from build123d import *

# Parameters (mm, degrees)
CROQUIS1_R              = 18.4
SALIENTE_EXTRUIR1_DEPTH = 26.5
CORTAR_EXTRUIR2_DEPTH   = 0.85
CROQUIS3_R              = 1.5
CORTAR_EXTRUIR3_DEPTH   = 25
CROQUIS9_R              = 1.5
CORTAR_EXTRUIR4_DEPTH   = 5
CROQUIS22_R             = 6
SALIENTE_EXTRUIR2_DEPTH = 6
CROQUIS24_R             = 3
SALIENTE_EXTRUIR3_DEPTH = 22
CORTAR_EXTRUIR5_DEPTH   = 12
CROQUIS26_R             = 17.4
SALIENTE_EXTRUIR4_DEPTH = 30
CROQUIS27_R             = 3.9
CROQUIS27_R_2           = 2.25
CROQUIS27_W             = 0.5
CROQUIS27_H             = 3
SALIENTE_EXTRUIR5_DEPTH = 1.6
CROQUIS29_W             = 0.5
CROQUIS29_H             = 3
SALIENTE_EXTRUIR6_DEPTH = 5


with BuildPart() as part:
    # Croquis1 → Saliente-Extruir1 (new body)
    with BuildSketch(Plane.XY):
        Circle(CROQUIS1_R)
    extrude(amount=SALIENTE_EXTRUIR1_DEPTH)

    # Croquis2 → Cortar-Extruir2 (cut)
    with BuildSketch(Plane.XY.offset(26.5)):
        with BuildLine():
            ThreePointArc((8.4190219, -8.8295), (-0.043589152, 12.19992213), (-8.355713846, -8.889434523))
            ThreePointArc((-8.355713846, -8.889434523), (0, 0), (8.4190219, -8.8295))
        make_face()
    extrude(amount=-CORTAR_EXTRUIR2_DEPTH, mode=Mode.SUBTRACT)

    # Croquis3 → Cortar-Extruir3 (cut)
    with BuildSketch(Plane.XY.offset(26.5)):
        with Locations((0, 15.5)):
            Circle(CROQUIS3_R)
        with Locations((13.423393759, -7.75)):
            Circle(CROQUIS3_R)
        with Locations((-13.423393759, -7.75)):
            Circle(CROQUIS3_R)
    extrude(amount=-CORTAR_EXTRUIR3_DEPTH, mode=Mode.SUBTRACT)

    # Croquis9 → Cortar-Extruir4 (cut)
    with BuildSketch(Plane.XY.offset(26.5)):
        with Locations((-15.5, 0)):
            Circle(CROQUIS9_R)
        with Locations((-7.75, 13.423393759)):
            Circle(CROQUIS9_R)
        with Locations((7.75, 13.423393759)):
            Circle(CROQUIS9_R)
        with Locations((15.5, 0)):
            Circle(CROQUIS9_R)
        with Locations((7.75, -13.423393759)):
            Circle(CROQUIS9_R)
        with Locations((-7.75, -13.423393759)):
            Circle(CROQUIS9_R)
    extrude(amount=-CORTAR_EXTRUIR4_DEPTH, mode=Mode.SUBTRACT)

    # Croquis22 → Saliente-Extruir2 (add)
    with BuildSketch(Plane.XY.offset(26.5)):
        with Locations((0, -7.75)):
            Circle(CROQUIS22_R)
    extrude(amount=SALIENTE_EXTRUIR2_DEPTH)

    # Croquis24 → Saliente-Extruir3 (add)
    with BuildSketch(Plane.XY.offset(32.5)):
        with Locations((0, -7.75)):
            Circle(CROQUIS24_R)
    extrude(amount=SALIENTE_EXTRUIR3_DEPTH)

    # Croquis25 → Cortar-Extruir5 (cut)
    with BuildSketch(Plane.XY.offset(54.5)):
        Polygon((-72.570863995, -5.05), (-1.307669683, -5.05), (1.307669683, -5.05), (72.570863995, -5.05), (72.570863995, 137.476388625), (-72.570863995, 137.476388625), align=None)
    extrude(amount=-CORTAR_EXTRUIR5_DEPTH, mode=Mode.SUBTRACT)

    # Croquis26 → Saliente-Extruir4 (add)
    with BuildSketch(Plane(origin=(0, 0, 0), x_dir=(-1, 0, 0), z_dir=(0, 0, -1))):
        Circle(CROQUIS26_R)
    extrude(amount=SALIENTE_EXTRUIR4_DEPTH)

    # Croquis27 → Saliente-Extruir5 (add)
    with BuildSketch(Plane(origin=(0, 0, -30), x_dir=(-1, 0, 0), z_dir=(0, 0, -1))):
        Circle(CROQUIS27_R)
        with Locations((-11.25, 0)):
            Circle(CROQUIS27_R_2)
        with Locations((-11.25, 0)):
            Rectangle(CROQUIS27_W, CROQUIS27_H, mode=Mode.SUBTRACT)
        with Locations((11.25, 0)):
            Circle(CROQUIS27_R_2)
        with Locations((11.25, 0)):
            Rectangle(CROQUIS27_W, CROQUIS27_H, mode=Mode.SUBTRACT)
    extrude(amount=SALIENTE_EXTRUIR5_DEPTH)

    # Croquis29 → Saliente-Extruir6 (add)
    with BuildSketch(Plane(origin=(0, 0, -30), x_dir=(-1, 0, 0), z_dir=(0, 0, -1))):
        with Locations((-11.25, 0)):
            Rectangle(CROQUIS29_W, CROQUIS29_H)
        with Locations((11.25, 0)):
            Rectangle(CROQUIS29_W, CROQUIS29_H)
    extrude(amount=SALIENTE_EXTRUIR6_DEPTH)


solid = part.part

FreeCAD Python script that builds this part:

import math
import FreeCAD as App
import Part
import Sketcher
from FreeCAD import Vector
Q = App.Units.Quantity

doc = App.newDocument("Part")
params = doc.addObject("Spreadsheet::Sheet", "Params")
for row, (alias, value) in enumerate([
    ("sketch1_diameter", "36.8 mm"),
    ("pad1_length", "26.5 mm"),
    ("sketch2_radius", "12.2 mm"),
    ("sketch2_radius2", "8.4 mm"),
    ("pocket1_length", "0.85 mm"),
    ("sketch3_diameter", "3 mm"),
    ("pocket2_length", "25 mm"),
    ("sketch4_diameter", "3 mm"),
    ("pocket3_length", "5 mm"),
    ("sketch5_diameter", "12 mm"),
    ("pad2_length", "6 mm"),
    ("sketch6_diameter", "6 mm"),
    ("pad3_length", "22 mm"),
    ("pocket4_length", "12 mm"),
    ("sketch8_diameter", "34.8 mm"),
    ("pad4_length", "30 mm"),
    ("sketch9_diameter", "7.8 mm"),
    ("sketch9_diameter2", "4.5 mm"),
    ("sketch9_height", "3 mm"),
    ("sketch9_width", "0.5 mm"),
    ("pad5_length", "1.6 mm"),
    ("sketch10_height", "3 mm"),
    ("sketch10_width", "0.5 mm"),
    ("pad6_length", "5 mm"),
], start=1):
    params.set(f"A{row}", alias)
    params.set(f"B{row}", "=" + value)
    params.setAlias(f"B{row}", alias)

body = doc.addObject("PartDesign::Body", "Body")

# Sketch on XY plane
sketch1 = doc.addObject("Sketcher::SketchObject", "Sketch")
body.addObject(sketch1)
sketch1.AttachmentSupport = (doc.XY_Plane, [""])
sketch1.MapMode = "FlatFace"
sketch1.addGeometry(Part.Circle(Vector(0, 0, 0), Vector(0, 0, 1), 18.4), False)
sketch1.addConstraint([
    Sketcher.Constraint("Coincident", 0, 3, -1, 1),
    Sketcher.Constraint("Diameter", 0, Q("36.8 mm")),
])
sketch1.setExpression("Constraints[1]", "Params.sketch1_diameter")
pad1 = doc.addObject("PartDesign::Pad", "Pad")
body.addObject(pad1)
pad1.Profile = sketch1
pad1.setExpression("Length", "Params.pad1_length")

# Sketch on XY plane
sketch2 = doc.addObject("Sketcher::SketchObject", "Sketch001")
body.addObject(sketch2)
sketch2.AttachmentSupport = (doc.XY_Plane, [""])
sketch2.MapMode = "FlatFace"
sketch2.AttachmentOffset = App.Placement(Vector(0, 0, 26.5), App.Rotation())
sketch2.addGeometry([
    Part.ArcOfCircle(Part.Circle(Vector(0, 0, 0), Vector(0, 0, 1), 12.2), math.radians(-46.36326), math.radians(226.772683)),
    Part.ArcOfCircle(Part.Circle(Vector(0.030012, -8.399946, 0), Vector(0, 0, 1), 8.4), math.radians(-2.931232), math.radians(183.340655)),
], False)
sketch2.addConstraint([
    Sketcher.Constraint("Coincident", 0, 1, 1, 1),
    Sketcher.Constraint("Coincident", 1, 2, 0, 2),
    Sketcher.Constraint("Coincident", 0, 3, -1, 1),
    Sketcher.Constraint("Radius", 0, Q("12.2 mm")),
    Sketcher.Constraint("Radius", 1, Q("8.4 mm")),
    Sketcher.Constraint("DistanceY", 0, 1, -1, 1, Q("8.8295 mm")),
    Sketcher.Constraint("DistanceX", 1, 3, 0, 1, Q("8.38901 mm")),
])
sketch2.setExpression("Constraints[3]", "Params.sketch2_radius")
sketch2.setExpression("Constraints[4]", "Params.sketch2_radius2")
pocket1 = doc.addObject("PartDesign::Pocket", "Pocket")
body.addObject(pocket1)
pocket1.Profile = sketch2
pocket1.setExpression("Length", "Params.pocket1_length")

# Sketch on XY plane
sketch3 = doc.addObject("Sketcher::SketchObject", "Sketch002")
body.addObject(sketch3)
sketch3.AttachmentSupport = (doc.XY_Plane, [""])
sketch3.MapMode = "FlatFace"
sketch3.AttachmentOffset = App.Placement(Vector(0, 0, 26.5), App.Rotation())
sketch3.addGeometry([
    Part.Circle(Vector(0, 15.5, 0), Vector(0, 0, 1), 1.5),
    Part.Circle(Vector(13.423394, -7.75, 0), Vector(0, 0, 1), 1.5),
    Part.Circle(Vector(-13.423394, -7.75, 0), Vector(0, 0, 1), 1.5),
], False)
sketch3.addConstraint([
    Sketcher.Constraint("Equal", 0, 1),
    Sketcher.Constraint("Equal", 1, 2),
    Sketcher.Constraint("Symmetric", 1, 3, 2, 3, -2),
    Sketcher.Constraint("PointOnObject", 0, 3, -2),
    Sketcher.Constraint("Diameter", 0, Q("3 mm")),
    Sketcher.Constraint("DistanceY", -1, 1, 0, 3, Q("15.5 mm")),
    Sketcher.Constraint("DistanceY", 1, 3, -1, 1, Q("7.75 mm")),
    Sketcher.Constraint("DistanceX", -1, 1, 1, 3, Q("13.423394 mm")),
])
sketch3.setExpression("Constraints[4]", "Params.sketch3_diameter")
pocket2 = doc.addObject("PartDesign::Pocket", "Pocket001")
body.addObject(pocket2)
pocket2.Profile = sketch3
pocket2.setExpression("Length", "Params.pocket2_length")

# Sketch on XY plane
sketch4 = doc.addObject("Sketcher::SketchObject", "Sketch003")
body.addObject(sketch4)
sketch4.AttachmentSupport = (doc.XY_Plane, [""])
sketch4.MapMode = "FlatFace"
sketch4.AttachmentOffset = App.Placement(Vector(0, 0, 26.5), App.Rotation())
sketch4.addGeometry([
    Part.Circle(Vector(-15.5, 0, 0), Vector(0, 0, 1), 1.5),  # 0
    Part.Circle(Vector(-7.75, 13.423394, 0), Vector(0, 0, 1), 1.5),  # 1
    Part.Circle(Vector(7.75, 13.423394, 0), Vector(0, 0, 1), 1.5),  # 2
    Part.Circle(Vector(15.5, 0, 0), Vector(0, 0, 1), 1.5),  # 3
    Part.Circle(Vector(7.75, -13.423394, 0), Vector(0, 0, 1), 1.5),  # 4
    Part.Circle(Vector(-7.75, -13.423394, 0), Vector(0, 0, 1), 1.5),  # 5
], False)
sketch4.addConstraint([
    Sketcher.Constraint("Equal", 0, 1),
    Sketcher.Constraint("Equal", 1, 2),
    Sketcher.Constraint("Equal", 2, 3),
    Sketcher.Constraint("Equal", 3, 4),
    Sketcher.Constraint("Equal", 4, 5),
    Sketcher.Constraint("Symmetric", 0, 3, 3, 3, -1, 1),
    Sketcher.Constraint("Symmetric", 1, 3, 4, 3, -1, 1),
    Sketcher.Constraint("Symmetric", 2, 3, 5, 3, -1, 1),
    Sketcher.Constraint("Symmetric", 1, 3, 2, 3, -2),
    Sketcher.Constraint("PointOnObject", 0, 3, -1),
    Sketcher.Constraint("Diameter", 0, Q("3 mm")),
    Sketcher.Constraint("DistanceX", 0, 3, 3, 3, Q("31 mm")),
    Sketcher.Constraint("DistanceX", 1, 3, 2, 3, Q("15.5 mm")),
    Sketcher.Constraint("DistanceY", -1, 1, 1, 3, Q("13.423394 mm")),
])
sketch4.setExpression("Constraints[10]", "Params.sketch4_diameter")
pocket3 = doc.addObject("PartDesign::Pocket", "Pocket002")
body.addObject(pocket3)
pocket3.Profile = sketch4
pocket3.setExpression("Length", "Params.pocket3_length")

# Sketch on XY plane
sketch5 = doc.addObject("Sketcher::SketchObject", "Sketch004")
body.addObject(sketch5)
sketch5.AttachmentSupport = (doc.XY_Plane, [""])
sketch5.MapMode = "FlatFace"
sketch5.AttachmentOffset = App.Placement(Vector(0, 0, 26.5), App.Rotation())
sketch5.addGeometry(Part.Circle(Vector(0, -7.75, 0), Vector(0, 0, 1), 6), False)
sketch5.addConstraint([
    Sketcher.Constraint("PointOnObject", 0, 3, -2),
    Sketcher.Constraint("Diameter", 0, Q("12 mm")),
    Sketcher.Constraint("DistanceY", 0, 3, -1, 1, Q("7.75 mm")),
])
sketch5.setExpression("Constraints[1]", "Params.sketch5_diameter")
pad2 = doc.addObject("PartDesign::Pad", "Pad001")
body.addObject(pad2)
pad2.Profile = sketch5
pad2.setExpression("Length", "Params.pad2_length")

# Sketch on XY plane
sketch6 = doc.addObject("Sketcher::SketchObject", "Sketch005")
body.addObject(sketch6)
sketch6.AttachmentSupport = (doc.XY_Plane, [""])
sketch6.MapMode = "FlatFace"
sketch6.AttachmentOffset = App.Placement(Vector(0, 0, 32.5), App.Rotation())
sketch6.addGeometry(Part.Circle(Vector(0, -7.75, 0), Vector(0, 0, 1), 3), False)
sketch6.addConstraint([
    Sketcher.Constraint("PointOnObject", 0, 3, -2),
    Sketcher.Constraint("Diameter", 0, Q("6 mm")),
    Sketcher.Constraint("DistanceY", 0, 3, -1, 1, Q("7.75 mm")),
])
sketch6.setExpression("Constraints[1]", "Params.sketch6_diameter")
pad3 = doc.addObject("PartDesign::Pad", "Pad002")
body.addObject(pad3)
pad3.Profile = sketch6
pad3.setExpression("Length", "Params.pad3_length")

# Sketch on XY plane
sketch7 = doc.addObject("Sketcher::SketchObject", "Sketch006")
body.addObject(sketch7)
sketch7.AttachmentSupport = (doc.XY_Plane, [""])
sketch7.MapMode = "FlatFace"
sketch7.AttachmentOffset = App.Placement(Vector(0, 0, 54.5), App.Rotation())
sketch7.addGeometry([
    Part.LineSegment(Vector(-72.570864, -5.05, 0), Vector(72.570864, -5.05, 0)),
    Part.LineSegment(Vector(72.570864, -5.05, 0), Vector(72.570864, 137.476389, 0)),
    Part.LineSegment(Vector(72.570864, 137.476389, 0), Vector(-72.570864, 137.476389, 0)),
    Part.LineSegment(Vector(-72.570864, 137.476389, 0), Vector(-72.570864, -5.05, 0)),
], False)
sketch7.addConstraint([
    Sketcher.Constraint("Coincident", 0, 2, 1, 1),
    Sketcher.Constraint("Coincident", 1, 2, 2, 1),
    Sketcher.Constraint("Coincident", 2, 2, 3, 1),
    Sketcher.Constraint("Coincident", 3, 2, 0, 1),
    Sketcher.Constraint("Horizontal", 0),
    Sketcher.Constraint("Vertical", 1),
    Sketcher.Constraint("Horizontal", 2),
    Sketcher.Constraint("Vertical", 3),
    Sketcher.Constraint("DistanceY", 0, 2, -1, 1, Q("5.05 mm")),
    Sketcher.Constraint("DistanceY", 1, 1, 1, 2, Q("142.526389 mm")),
    Sketcher.Constraint("DistanceX", 0, 1, 0, 2, Q("145.141728 mm")),
    Sketcher.Constraint("DistanceX", -1, 1, 0, 2, Q("72.570864 mm")),
])
pocket4 = doc.addObject("PartDesign::Pocket", "Pocket003")
body.addObject(pocket4)
pocket4.Profile = sketch7
pocket4.setExpression("Length", "Params.pocket4_length")

# Sketch on XY plane
sketch8 = doc.addObject("Sketcher::SketchObject", "Sketch007")
body.addObject(sketch8)
sketch8.AttachmentSupport = (doc.XY_Plane, [""])
sketch8.MapMode = "FlatFace"
sketch8.addGeometry(Part.Circle(Vector(0, 0, 0), Vector(0, 0, 1), 17.4), False)
sketch8.addConstraint([
    Sketcher.Constraint("Coincident", 0, 3, -1, 1),
    Sketcher.Constraint("Diameter", 0, Q("34.8 mm")),
])
sketch8.setExpression("Constraints[1]", "Params.sketch8_diameter")
pad4 = doc.addObject("PartDesign::Pad", "Pad003")
body.addObject(pad4)
pad4.Profile = sketch8
pad4.setExpression("Length", "Params.pad4_length")
pad4.Reversed = True

# Sketch on XY plane
sketch9 = doc.addObject("Sketcher::SketchObject", "Sketch008")
body.addObject(sketch9)
sketch9.AttachmentSupport = (doc.XY_Plane, [""])
sketch9.MapMode = "FlatFace"
sketch9.AttachmentOffset = App.Placement(Vector(0, 0, -30), App.Rotation())
sketch9.addGeometry([
    Part.Circle(Vector(0, 0, 0), Vector(0, 0, 1), 3.9),  # 0
    Part.Circle(Vector(11.25, 0, 0), Vector(0, 0, 1), 2.25),  # 1
    Part.LineSegment(Vector(11, -1.5, 0), Vector(11.5, -1.5, 0)),  # 2
    Part.LineSegment(Vector(11.5, -1.5, 0), Vector(11.5, 1.5, 0)),  # 3
    Part.LineSegment(Vector(11.5, 1.5, 0), Vector(11, 1.5, 0)),  # 4
    Part.LineSegment(Vector(11, 1.5, 0), Vector(11, -1.5, 0)),  # 5
    Part.Circle(Vector(-11.25, 0, 0), Vector(0, 0, 1), 2.25),  # 6
    Part.LineSegment(Vector(-11.5, -1.5, 0), Vector(-11, -1.5, 0)),  # 7
    Part.LineSegment(Vector(-11, -1.5, 0), Vector(-11, 1.5, 0)),  # 8
    Part.LineSegment(Vector(-11, 1.5, 0), Vector(-11.5, 1.5, 0)),  # 9
    Part.LineSegment(Vector(-11.5, 1.5, 0), Vector(-11.5, -1.5, 0)),  # 10
], False)
sketch9.addConstraint([
    Sketcher.Constraint("Coincident", 2, 2, 3, 1),
    Sketcher.Constraint("Coincident", 3, 2, 4, 1),
    Sketcher.Constraint("Coincident", 4, 2, 5, 1),
    Sketcher.Constraint("Coincident", 5, 2, 2, 1),
    Sketcher.Constraint("Coincident", 7, 2, 8, 1),
    Sketcher.Constraint("Coincident", 8, 2, 9, 1),
    Sketcher.Constraint("Coincident", 9, 2, 10, 1),
    Sketcher.Constraint("Coincident", 10, 2, 7, 1),
    Sketcher.Constraint("Horizontal", 2),
    Sketcher.Constraint("Vertical", 3),
    Sketcher.Constraint("Horizontal", 4),
    Sketcher.Constraint("Vertical", 5),
    Sketcher.Constraint("Horizontal", 7),
    Sketcher.Constraint("Vertical", 8),
    Sketcher.Constraint("Horizontal", 9),
    Sketcher.Constraint("Vertical", 10),
    Sketcher.Constraint("Coincident", 0, 3, -1, 1),
    Sketcher.Constraint("Equal", 1, 6),
    Sketcher.Constraint("Symmetric", 1, 3, 6, 3, -1, 1),
    Sketcher.Constraint("Symmetric", 4, 2, 7, 2, -1, 1),
    Sketcher.Constraint("Symmetric", 2, 2, 9, 2, -1, 1),
    Sketcher.Constraint("PointOnObject", 1, 3, -1),
    Sketcher.Constraint("Horizontal", 5, 2, 7, 2),
    Sketcher.Constraint("Diameter", 0, Q("7.8 mm")),
    Sketcher.Constraint("Diameter", 1, Q("4.5 mm")),
    Sketcher.Constraint("DistanceY", 3, 1, 3, 2, Q("3 mm")),
    Sketcher.Constraint("DistanceX", 2, 1, 2, 2, Q("0.5 mm")),
    Sketcher.Constraint("DistanceX", -1, 1, 4, 2, Q("11 mm")),
    Sketcher.Constraint("DistanceX", 6, 3, 1, 3, Q("22.5 mm")),
])
sketch9.setExpression("Constraints[23]", "Params.sketch9_diameter")
sketch9.setExpression("Constraints[24]", "Params.sketch9_diameter2")
sketch9.setExpression("Constraints[25]", "Params.sketch9_height")
sketch9.setExpression("Constraints[26]", "Params.sketch9_width")
pad5 = doc.addObject("PartDesign::Pad", "Pad004")
body.addObject(pad5)
pad5.Profile = sketch9
pad5.setExpression("Length", "Params.pad5_length")
pad5.Reversed = True

# Sketch on XY plane
sketch10 = doc.addObject("Sketcher::SketchObject", "Sketch009")
body.addObject(sketch10)
sketch10.AttachmentSupport = (doc.XY_Plane, [""])
sketch10.MapMode = "FlatFace"
sketch10.AttachmentOffset = App.Placement(Vector(0, 0, -30), App.Rotation())
sketch10.addGeometry([
    Part.LineSegment(Vector(11.5, 1.5, 0), Vector(11.5, -1.5, 0)),  # 0
    Part.LineSegment(Vector(11.5, -1.5, 0), Vector(11, -1.5, 0)),  # 1
    Part.LineSegment(Vector(11, -1.5, 0), Vector(11, 1.5, 0)),  # 2
    Part.LineSegment(Vector(11, 1.5, 0), Vector(11.5, 1.5, 0)),  # 3
    Part.LineSegment(Vector(-11, 1.5, 0), Vector(-11, -1.5, 0)),  # 4
    Part.LineSegment(Vector(-11, -1.5, 0), Vector(-11.5, -1.5, 0)),  # 5
    Part.LineSegment(Vector(-11.5, -1.5, 0), Vector(-11.5, 1.5, 0)),  # 6
    Part.LineSegment(Vector(-11.5, 1.5, 0), Vector(-11, 1.5, 0)),  # 7
], False)
sketch10.addConstraint([
    Sketcher.Constraint("Coincident", 0, 2, 1, 1),
    Sketcher.Constraint("Coincident", 1, 2, 2, 1),
    Sketcher.Constraint("Coincident", 2, 2, 3, 1),
    Sketcher.Constraint("Coincident", 3, 2, 0, 1),
    Sketcher.Constraint("Coincident", 4, 2, 5, 1),
    Sketcher.Constraint("Coincident", 5, 2, 6, 1),
    Sketcher.Constraint("Coincident", 6, 2, 7, 1),
    Sketcher.Constraint("Coincident", 7, 2, 4, 1),
    Sketcher.Constraint("Vertical", 0),
    Sketcher.Constraint("Horizontal", 1),
    Sketcher.Constraint("Vertical", 2),
    Sketcher.Constraint("Horizontal", 3),
    Sketcher.Constraint("Vertical", 4),
    Sketcher.Constraint("Horizontal", 5),
    Sketcher.Constraint("Vertical", 6),
    Sketcher.Constraint("Horizontal", 7),
    Sketcher.Constraint("Symmetric", 2, 2, 4, 2, -1, 1),
    Sketcher.Constraint("Symmetric", 0, 2, 6, 2, -1, 1),
    Sketcher.Constraint("Horizontal", 1, 2, 4, 2),
    Sketcher.Constraint("DistanceY", 0, 2, 0, 1, Q("3 mm")),
    Sketcher.Constraint("DistanceX", 1, 2, 1, 1, Q("0.5 mm")),
    Sketcher.Constraint("DistanceX", -1, 1, 1, 2, Q("11 mm")),
])
sketch10.setExpression("Constraints[19]", "Params.sketch10_height")
sketch10.setExpression("Constraints[20]", "Params.sketch10_width")
pad6 = doc.addObject("PartDesign::Pad", "Pad005")
body.addObject(pad6)
pad6.Profile = sketch10
pad6.setExpression("Length", "Params.pad6_length")
pad6.Reversed = True

doc.recompute()
